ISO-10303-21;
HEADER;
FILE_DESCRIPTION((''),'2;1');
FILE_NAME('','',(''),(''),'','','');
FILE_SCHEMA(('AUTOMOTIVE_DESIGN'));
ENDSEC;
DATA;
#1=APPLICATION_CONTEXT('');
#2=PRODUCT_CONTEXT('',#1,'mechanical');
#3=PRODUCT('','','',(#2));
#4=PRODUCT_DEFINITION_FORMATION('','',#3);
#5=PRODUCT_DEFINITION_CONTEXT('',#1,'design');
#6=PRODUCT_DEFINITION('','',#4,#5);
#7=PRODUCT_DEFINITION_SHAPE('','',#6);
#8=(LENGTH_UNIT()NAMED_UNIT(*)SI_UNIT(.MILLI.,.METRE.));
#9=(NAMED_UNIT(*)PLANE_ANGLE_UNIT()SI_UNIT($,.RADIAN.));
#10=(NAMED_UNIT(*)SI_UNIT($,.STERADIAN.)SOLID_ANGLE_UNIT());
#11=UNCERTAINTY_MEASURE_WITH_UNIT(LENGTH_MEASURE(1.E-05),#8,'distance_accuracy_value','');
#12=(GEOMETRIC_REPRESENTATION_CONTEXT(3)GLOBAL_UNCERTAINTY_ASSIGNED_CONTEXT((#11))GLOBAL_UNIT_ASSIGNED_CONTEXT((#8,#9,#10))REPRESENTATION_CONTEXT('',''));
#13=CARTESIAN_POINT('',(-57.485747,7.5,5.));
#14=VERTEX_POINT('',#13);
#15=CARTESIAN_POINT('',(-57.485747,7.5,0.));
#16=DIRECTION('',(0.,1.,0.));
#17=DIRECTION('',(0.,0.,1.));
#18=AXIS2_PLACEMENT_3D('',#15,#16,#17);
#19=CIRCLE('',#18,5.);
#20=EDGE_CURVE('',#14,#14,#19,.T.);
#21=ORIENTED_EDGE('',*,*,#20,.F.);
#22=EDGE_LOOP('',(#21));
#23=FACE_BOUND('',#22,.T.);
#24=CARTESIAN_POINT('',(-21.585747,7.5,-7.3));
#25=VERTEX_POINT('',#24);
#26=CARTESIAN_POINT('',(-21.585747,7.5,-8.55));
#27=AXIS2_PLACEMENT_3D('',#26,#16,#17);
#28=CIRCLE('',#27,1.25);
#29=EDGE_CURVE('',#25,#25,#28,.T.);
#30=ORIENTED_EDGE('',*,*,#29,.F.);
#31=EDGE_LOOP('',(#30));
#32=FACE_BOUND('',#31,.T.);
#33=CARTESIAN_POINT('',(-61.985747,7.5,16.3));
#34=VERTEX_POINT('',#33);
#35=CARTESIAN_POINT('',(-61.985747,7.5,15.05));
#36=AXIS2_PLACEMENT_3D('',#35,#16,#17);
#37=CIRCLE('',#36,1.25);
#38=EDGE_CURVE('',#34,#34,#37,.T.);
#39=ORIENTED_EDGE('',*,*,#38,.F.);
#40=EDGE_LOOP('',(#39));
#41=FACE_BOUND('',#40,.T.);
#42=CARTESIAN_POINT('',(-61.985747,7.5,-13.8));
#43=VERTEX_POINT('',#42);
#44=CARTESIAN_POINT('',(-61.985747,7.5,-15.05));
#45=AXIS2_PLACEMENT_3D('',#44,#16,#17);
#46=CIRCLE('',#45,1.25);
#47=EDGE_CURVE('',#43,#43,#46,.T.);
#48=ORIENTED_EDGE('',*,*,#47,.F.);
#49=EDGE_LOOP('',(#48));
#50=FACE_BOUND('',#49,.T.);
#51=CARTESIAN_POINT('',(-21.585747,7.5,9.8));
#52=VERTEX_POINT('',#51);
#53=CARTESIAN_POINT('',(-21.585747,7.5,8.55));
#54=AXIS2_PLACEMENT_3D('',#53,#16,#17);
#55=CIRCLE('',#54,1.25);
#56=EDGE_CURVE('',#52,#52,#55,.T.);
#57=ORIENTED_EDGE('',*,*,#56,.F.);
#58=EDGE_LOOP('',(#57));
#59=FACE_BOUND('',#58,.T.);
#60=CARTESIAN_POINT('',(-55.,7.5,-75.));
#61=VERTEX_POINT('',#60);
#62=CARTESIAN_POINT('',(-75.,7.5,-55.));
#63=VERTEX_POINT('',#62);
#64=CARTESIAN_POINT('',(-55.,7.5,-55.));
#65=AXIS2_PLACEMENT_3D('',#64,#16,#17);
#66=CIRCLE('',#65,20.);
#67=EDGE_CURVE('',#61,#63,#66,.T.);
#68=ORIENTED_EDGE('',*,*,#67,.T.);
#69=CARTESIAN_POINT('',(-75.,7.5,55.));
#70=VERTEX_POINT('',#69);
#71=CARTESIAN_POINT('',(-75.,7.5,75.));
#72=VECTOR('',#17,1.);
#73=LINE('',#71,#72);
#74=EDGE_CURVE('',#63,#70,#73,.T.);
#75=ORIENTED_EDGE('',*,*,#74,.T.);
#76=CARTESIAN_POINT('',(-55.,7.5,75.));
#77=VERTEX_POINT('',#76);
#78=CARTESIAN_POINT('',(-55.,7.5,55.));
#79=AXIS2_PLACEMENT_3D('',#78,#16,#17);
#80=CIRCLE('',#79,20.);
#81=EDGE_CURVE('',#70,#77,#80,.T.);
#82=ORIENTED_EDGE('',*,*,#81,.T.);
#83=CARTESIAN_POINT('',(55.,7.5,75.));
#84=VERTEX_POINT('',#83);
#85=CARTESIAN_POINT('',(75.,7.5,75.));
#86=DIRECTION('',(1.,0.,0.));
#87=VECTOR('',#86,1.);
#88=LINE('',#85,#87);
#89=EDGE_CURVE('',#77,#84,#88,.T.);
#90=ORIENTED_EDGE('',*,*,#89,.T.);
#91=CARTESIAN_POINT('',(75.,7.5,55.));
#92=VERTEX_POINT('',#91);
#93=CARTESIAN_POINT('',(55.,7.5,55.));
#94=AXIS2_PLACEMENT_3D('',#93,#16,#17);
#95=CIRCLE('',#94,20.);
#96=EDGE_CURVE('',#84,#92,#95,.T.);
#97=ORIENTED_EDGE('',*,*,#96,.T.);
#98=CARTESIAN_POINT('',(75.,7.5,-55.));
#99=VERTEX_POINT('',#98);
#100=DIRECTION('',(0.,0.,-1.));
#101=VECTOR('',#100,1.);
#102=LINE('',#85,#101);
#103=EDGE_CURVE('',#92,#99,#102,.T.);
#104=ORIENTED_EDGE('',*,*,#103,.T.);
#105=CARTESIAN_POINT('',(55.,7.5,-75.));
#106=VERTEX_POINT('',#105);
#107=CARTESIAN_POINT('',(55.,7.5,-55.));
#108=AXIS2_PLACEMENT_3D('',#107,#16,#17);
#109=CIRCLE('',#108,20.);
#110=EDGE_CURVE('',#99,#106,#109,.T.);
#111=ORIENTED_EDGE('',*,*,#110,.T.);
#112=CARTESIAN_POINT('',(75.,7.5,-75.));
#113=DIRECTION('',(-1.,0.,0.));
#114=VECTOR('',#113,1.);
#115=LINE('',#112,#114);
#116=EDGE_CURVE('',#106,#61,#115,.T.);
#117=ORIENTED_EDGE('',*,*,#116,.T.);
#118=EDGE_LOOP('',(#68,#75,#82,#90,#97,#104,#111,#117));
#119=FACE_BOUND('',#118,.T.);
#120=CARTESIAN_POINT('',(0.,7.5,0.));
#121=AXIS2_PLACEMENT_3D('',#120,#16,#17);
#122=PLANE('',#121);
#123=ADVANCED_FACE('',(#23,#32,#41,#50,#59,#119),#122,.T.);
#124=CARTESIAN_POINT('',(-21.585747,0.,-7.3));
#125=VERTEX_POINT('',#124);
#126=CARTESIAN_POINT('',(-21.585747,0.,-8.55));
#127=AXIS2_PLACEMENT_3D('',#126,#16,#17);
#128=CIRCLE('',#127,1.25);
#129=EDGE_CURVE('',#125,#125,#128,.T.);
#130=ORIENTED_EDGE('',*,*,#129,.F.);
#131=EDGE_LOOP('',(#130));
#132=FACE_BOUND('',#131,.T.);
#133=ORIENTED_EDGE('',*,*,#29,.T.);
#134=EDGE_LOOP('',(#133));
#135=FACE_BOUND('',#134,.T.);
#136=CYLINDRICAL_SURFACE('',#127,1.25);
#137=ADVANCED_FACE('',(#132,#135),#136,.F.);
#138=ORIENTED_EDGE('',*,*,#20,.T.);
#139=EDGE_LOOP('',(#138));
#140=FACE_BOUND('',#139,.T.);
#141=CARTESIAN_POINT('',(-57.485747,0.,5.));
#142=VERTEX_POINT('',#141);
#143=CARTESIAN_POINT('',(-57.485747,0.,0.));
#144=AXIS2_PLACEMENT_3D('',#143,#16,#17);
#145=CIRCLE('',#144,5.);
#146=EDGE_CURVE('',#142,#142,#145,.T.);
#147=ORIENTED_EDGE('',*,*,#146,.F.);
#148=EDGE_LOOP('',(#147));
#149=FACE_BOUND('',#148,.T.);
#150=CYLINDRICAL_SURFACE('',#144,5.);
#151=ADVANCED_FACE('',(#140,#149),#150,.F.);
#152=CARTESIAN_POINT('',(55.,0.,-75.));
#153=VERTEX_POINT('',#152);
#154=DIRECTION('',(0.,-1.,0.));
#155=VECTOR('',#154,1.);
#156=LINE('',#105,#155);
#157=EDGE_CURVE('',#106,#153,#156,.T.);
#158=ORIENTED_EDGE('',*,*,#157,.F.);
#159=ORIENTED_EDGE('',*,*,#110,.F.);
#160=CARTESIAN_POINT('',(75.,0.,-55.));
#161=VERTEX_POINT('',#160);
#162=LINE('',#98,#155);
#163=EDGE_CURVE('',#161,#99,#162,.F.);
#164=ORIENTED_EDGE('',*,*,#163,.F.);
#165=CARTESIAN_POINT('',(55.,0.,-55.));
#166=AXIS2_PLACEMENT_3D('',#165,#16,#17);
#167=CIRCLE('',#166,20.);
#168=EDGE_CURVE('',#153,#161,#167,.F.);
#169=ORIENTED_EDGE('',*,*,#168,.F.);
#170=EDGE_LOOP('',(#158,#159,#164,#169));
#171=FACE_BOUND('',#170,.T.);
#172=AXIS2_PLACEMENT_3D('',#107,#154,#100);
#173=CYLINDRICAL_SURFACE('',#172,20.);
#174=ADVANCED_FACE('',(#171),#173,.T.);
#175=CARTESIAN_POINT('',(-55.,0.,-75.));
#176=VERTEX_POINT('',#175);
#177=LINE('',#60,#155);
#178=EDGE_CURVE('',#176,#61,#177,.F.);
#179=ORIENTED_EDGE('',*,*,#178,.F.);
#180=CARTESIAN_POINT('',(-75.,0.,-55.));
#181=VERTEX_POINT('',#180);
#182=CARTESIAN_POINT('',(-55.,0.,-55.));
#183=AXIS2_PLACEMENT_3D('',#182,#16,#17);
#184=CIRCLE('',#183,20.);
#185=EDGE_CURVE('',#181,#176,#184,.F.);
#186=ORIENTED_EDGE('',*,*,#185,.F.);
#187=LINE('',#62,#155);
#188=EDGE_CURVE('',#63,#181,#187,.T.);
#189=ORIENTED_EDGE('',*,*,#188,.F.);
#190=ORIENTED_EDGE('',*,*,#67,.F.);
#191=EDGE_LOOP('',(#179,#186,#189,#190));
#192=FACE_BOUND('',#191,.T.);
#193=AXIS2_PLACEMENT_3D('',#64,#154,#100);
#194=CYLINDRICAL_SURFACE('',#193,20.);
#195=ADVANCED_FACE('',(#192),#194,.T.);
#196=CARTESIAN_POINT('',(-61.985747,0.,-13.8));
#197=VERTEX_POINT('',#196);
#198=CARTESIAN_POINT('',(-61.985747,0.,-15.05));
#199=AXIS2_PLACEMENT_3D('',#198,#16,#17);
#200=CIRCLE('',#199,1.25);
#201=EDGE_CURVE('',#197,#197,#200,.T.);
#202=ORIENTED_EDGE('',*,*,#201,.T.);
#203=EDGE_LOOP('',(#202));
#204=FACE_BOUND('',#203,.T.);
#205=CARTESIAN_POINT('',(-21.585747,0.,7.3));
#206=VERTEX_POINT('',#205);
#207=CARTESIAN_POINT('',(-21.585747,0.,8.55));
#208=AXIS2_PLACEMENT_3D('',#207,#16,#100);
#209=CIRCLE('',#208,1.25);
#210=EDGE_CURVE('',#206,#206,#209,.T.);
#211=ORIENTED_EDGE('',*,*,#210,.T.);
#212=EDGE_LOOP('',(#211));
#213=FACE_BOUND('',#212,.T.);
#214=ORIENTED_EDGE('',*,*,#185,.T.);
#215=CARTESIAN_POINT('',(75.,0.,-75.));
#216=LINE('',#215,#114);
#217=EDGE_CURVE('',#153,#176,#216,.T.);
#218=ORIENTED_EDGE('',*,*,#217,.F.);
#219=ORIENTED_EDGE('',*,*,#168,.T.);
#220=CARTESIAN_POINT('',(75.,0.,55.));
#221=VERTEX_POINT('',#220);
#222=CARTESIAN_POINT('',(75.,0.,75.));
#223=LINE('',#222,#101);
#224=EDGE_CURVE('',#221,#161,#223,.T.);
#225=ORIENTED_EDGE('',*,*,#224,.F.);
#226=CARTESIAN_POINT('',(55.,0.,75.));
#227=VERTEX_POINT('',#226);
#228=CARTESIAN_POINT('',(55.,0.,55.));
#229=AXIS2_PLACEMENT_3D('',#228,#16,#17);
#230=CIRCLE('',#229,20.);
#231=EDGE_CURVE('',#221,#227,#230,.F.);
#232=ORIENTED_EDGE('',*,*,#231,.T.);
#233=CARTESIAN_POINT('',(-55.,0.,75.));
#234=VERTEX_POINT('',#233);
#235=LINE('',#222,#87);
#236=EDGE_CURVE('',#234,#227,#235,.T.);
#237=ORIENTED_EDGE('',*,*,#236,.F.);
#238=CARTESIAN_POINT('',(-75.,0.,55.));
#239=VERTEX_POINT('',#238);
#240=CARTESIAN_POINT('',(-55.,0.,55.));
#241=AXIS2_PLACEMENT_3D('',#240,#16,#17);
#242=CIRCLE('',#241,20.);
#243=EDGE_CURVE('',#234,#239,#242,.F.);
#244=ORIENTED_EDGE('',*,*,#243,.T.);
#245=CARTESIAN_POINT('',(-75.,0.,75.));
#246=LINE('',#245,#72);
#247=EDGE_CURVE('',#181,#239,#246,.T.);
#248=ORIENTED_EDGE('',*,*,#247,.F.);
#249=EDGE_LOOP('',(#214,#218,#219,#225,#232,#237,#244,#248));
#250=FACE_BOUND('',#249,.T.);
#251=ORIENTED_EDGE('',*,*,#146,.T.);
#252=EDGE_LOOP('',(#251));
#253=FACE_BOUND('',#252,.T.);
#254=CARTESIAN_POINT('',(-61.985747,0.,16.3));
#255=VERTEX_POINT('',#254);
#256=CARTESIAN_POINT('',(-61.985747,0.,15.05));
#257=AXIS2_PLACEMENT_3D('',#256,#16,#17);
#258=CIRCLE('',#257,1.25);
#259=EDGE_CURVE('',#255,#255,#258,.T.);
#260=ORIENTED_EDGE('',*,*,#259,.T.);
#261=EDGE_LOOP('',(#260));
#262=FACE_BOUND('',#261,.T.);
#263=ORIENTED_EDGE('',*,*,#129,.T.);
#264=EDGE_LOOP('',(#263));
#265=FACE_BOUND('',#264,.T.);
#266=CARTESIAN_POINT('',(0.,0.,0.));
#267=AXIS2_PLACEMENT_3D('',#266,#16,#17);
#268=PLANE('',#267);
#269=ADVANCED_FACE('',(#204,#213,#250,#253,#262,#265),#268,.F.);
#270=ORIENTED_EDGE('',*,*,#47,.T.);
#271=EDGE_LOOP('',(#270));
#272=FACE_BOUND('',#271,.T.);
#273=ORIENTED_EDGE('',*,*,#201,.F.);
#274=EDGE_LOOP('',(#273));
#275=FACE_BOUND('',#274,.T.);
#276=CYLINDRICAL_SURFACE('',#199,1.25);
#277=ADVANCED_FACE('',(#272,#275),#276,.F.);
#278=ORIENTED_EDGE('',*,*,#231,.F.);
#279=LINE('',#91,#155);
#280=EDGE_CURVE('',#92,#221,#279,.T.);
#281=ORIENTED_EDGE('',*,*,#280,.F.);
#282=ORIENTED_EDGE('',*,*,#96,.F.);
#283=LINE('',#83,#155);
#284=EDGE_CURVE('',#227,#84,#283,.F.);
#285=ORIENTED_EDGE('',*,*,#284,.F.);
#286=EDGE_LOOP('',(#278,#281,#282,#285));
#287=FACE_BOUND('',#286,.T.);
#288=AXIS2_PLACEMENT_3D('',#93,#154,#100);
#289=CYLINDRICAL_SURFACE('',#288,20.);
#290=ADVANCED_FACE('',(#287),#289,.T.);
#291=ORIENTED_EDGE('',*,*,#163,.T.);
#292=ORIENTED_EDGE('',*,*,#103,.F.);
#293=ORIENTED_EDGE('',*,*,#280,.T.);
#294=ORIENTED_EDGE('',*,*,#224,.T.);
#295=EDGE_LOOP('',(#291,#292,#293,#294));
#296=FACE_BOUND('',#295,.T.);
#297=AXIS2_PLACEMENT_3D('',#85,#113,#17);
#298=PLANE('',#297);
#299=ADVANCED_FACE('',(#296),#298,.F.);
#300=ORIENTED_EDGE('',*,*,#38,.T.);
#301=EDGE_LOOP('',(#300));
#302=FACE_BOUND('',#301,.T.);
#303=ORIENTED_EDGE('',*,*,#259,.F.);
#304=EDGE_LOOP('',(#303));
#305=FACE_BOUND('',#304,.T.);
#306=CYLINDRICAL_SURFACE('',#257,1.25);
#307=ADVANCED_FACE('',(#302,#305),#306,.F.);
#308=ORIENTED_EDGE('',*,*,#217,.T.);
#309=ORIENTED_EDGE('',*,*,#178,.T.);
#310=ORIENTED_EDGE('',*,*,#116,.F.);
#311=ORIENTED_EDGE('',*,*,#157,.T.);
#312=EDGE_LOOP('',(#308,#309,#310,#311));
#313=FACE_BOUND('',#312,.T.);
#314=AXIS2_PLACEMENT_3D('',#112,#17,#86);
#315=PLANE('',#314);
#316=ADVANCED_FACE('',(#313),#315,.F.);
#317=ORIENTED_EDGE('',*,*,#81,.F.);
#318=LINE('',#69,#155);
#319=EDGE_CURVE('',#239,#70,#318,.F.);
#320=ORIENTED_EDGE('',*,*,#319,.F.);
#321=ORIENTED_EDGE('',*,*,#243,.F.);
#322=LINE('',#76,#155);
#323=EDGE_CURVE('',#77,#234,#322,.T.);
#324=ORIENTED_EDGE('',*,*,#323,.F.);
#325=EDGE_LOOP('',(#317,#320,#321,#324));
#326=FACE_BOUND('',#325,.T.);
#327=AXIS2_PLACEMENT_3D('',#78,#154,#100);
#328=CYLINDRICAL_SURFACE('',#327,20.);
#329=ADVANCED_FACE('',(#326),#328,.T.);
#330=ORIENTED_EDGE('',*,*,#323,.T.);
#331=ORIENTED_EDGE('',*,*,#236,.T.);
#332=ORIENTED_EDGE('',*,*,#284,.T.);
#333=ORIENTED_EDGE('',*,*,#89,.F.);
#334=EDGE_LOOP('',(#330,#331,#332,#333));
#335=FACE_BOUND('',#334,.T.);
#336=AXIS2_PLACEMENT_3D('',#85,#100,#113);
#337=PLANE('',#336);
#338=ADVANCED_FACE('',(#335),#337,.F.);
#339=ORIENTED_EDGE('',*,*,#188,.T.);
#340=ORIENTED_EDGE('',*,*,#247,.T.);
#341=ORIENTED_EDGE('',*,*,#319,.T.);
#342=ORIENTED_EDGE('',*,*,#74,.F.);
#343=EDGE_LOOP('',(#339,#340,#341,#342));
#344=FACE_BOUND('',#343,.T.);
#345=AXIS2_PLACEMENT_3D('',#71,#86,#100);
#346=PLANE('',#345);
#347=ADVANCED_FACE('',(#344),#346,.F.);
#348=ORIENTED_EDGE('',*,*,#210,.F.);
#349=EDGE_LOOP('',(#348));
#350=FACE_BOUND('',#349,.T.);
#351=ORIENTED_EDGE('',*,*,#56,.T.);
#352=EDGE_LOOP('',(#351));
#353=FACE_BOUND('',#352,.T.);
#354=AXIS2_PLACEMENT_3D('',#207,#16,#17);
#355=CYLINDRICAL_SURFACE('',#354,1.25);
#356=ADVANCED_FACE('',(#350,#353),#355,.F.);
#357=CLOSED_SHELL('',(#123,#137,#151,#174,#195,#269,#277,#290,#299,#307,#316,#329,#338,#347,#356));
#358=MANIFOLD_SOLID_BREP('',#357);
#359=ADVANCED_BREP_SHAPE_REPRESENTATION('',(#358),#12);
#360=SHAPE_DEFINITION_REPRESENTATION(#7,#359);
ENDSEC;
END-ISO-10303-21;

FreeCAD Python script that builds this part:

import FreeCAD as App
import Part
import Sketcher

V = App.Vector


def edges_at(feature, points):
    """Names of the edges that pass closest to the given points."""
    edges = feature.Shape.Edges
    near = lambda p: min(range(len(edges)), key=lambda i: edges[i].distToShape(Part.Vertex(*p))[0])
    return sorted({f"Edge{near(p) + 1}" for p in points})


def add_polygon(sketch, points):
    """Adds a closed chain of lines whose ends are joined by coincident constraints."""
    first, n = sketch.GeometryCount, len(points)
    for a, b in zip(points, points[1:] + points[:1]):
        sketch.addGeometry(Part.LineSegment(App.Vector(*a, 0), App.Vector(*b, 0)), False)
    for i in range(n):
        sketch.addConstraint(Sketcher.Constraint("Coincident", first + i, 2, first + (i + 1) % n, 1))

doc = App.newDocument("Part")
body = doc.addObject("PartDesign::Body", "Body")

# Sketch on XZ plane
sketch1 = doc.addObject("Sketcher::SketchObject", "Sketch")
body.addObject(sketch1)
sketch1.AttachmentSupport = (doc.XZ_Plane, [""])
sketch1.MapMode = "FlatFace"
add_polygon(sketch1, [(-75, -75), (-75, 75), (75, 75), (75, -75)])  # lines 0-3
sketch1.addConstraint([
    Sketcher.Constraint("Vertical", 0),
    Sketcher.Constraint("Horizontal", 1),
    Sketcher.Constraint("Vertical", 2),
    Sketcher.Constraint("Horizontal", 3),
    Sketcher.Constraint("Symmetric", 0, 2, 2, 2, -1, 1),
    Sketcher.Constraint("Equal", 3, 0),
    Sketcher.Constraint("DistanceX", 1, 1, 1, 2, 150.0),
])
pad1 = doc.addObject("PartDesign::Pad", "Pad")
body.addObject(pad1)
pad1.Profile = sketch1
pad1.Length = 7.5
pad1.Reversed = True

# Sketch on XZ plane
sketch2 = doc.addObject("Sketcher::SketchObject", "Sketch001")
body.addObject(sketch2)
sketch2.AttachmentSupport = (doc.XZ_Plane, [""])
sketch2.MapMode = "FlatFace"
sketch2.AttachmentOffset = App.Placement(V(0, 0, -7.5), App.Rotation())
sketch2.addGeometry([
    Part.Circle(V(-62, 15.1, 0), V(0, 0, 1), 1.2),  # 0
    Part.Circle(V(-62, -15.1, 0), V(0, 0, 1), 1.2),  # 1
    Part.Circle(V(-21.6, -8.6, 0), V(0, 0, 1), 1.2),  # 2
    Part.Circle(V(-21.6, 8.6, 0), V(0, 0, 1), 1.2),  # 3
    Part.Circle(V(-57.5, 0, 0), V(0, 0, 1), 5),  # 4
], False)
sketch2.addConstraint([
    Sketcher.Constraint("Equal", 0, 1),
    Sketcher.Constraint("Equal", 1, 2),
    Sketcher.Constraint("Equal", 2, 3),
    Sketcher.Constraint("Symmetric", 0, 3, 1, 3, -1),
    Sketcher.Constraint("Symmetric", 2, 3, 3, 3, -1),
    Sketcher.Constraint("PointOnObject", 4, 3, -1),
    Sketcher.Constraint("Diameter", 4, 10.0),
    Sketcher.Constraint("Diameter", 0, 2.5),
    Sketcher.Constraint("DistanceY", 1, 3, 0, 3, 30.1),
    Sketcher.Constraint("DistanceX", 1, 3, 2, 3, 40.4),
    Sketcher.Constraint("DistanceY", 1, 3, 2, 3, 6.5),
    Sketcher.Constraint("DistanceX", 0, 3, 4, 3, 4.5),
    Sketcher.Constraint("DistanceX", 0, 3, -1, 1, 61.985747),
])
pocket1 = doc.addObject("PartDesign::Pocket", "Pocket")
body.addObject(pocket1)
pocket1.Profile = sketch2
pocket1.Type = "ThroughAll"
pocket1.Midplane = True
doc.recompute()

fillet = doc.addObject("PartDesign::Fillet", "Fillet")
body.addObject(fillet)
fillet.Base = (pocket1, edges_at(pocket1, [
    (-75, 3.75, -75),
    (75, 3.75, -75),
    (75, 3.75, 75),
    (-75, 3.75, 75),
]))
fillet.Radius = 20

doc.recompute()
